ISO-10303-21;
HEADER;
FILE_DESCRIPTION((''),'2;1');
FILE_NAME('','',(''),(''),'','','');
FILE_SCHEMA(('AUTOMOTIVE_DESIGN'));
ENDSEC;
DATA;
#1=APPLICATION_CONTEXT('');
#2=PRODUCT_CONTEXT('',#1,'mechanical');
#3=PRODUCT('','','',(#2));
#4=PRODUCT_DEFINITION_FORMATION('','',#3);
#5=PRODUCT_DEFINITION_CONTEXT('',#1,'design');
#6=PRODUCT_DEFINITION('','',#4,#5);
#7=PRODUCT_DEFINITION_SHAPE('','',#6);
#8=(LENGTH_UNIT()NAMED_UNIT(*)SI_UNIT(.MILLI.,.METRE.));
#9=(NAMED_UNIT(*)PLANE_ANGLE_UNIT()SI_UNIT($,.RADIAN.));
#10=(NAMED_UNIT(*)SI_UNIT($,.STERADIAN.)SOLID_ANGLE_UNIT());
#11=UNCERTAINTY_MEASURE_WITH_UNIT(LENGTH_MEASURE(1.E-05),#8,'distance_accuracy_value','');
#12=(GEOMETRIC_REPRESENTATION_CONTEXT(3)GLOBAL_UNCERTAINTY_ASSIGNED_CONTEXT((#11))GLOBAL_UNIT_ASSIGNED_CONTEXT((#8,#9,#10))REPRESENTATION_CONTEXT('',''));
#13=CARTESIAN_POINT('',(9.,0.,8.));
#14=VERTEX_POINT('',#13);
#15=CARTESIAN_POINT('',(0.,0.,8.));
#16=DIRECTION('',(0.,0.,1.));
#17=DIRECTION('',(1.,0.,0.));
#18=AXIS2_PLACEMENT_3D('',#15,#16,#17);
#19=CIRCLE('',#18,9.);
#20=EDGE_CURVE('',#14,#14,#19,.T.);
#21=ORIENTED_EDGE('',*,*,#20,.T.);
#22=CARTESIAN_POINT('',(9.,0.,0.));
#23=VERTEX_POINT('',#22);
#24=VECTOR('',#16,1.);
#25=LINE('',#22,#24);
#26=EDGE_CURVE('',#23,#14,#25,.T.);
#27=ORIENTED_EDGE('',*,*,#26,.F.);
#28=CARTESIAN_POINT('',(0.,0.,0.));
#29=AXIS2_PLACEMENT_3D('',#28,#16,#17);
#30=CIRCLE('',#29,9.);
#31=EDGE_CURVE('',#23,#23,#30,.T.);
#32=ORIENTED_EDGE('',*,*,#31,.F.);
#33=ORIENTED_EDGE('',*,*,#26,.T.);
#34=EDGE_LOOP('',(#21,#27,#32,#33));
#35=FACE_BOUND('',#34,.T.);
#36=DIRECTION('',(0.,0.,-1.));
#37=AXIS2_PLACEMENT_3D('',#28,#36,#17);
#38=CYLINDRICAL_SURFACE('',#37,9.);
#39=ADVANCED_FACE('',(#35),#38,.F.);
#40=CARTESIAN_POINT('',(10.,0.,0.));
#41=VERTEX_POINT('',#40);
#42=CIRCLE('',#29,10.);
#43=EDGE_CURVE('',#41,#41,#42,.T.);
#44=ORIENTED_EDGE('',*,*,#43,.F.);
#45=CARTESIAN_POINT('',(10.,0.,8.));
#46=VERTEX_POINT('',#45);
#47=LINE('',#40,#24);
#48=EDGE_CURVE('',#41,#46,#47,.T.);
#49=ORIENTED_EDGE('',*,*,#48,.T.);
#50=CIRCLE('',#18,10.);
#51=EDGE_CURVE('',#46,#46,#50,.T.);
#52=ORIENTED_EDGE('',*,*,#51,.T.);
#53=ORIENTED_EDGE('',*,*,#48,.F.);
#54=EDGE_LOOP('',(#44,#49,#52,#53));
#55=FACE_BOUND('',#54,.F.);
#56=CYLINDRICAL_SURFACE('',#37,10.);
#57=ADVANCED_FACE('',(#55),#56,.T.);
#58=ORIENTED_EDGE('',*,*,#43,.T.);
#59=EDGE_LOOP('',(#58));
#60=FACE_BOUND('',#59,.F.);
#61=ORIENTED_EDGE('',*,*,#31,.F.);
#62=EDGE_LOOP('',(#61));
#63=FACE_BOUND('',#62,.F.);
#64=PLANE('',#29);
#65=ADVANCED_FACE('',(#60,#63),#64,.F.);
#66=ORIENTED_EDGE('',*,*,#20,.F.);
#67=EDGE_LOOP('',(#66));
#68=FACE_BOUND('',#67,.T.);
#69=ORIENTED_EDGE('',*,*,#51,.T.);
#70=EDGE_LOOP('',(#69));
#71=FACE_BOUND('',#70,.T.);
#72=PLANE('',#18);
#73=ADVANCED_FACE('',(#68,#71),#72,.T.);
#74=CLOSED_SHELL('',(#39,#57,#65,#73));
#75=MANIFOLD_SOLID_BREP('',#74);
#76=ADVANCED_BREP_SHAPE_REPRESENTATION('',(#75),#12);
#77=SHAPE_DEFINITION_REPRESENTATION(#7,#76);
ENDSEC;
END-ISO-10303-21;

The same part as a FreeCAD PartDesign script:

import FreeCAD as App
import Part
import Sketcher

V = App.Vector

doc = App.newDocument("Part")
params = doc.addObject("Spreadsheet::Sheet", "Params")
for row, (alias, value) in enumerate([
    ("sketch1_diameter", "20 mm"),
    ("sketch1_diameter2", "18 mm"),
    ("pad1_length", "8 mm"),
], start=1):
    params.set(f"A{row}", alias)
    params.set(f"B{row}", "=" + value)
    params.setAlias(f"B{row}", alias)

body = doc.addObject("PartDesign::Body", "Body")

# Sketch on XY plane
sketch1 = body.newObject("Sketcher::SketchObject", "Sketch")
sketch1.AttachmentSupport = (doc.getObject("XY_Plane"), [""])
sketch1.MapMode = "FlatFace"
sketch1.addGeometry([
    Part.Circle(V(0, 0, 0), V(0, 0, 1), 10),
    Part.Circle(V(0, 0, 0), V(0, 0, 1), 9),
], False)
sketch1.addConstraint([
    Sketcher.Constraint("Coincident", 0, 3, -1, 1),
    Sketcher.Constraint("Coincident", 1, 3, -1, 1),
    Sketcher.Constraint("Diameter", 0, 20.0),
    Sketcher.Constraint("Diameter", 1, 18.0),
])
sketch1.setExpression("Constraints[2]", "Params.sketch1_diameter")
sketch1.setExpression("Constraints[3]", "Params.sketch1_diameter2")
pad1 = body.newObject("PartDesign::Pad", "Pad")
pad1.Profile = sketch1
pad1.setExpression("Length", "Params.pad1_length")

doc.recompute()
